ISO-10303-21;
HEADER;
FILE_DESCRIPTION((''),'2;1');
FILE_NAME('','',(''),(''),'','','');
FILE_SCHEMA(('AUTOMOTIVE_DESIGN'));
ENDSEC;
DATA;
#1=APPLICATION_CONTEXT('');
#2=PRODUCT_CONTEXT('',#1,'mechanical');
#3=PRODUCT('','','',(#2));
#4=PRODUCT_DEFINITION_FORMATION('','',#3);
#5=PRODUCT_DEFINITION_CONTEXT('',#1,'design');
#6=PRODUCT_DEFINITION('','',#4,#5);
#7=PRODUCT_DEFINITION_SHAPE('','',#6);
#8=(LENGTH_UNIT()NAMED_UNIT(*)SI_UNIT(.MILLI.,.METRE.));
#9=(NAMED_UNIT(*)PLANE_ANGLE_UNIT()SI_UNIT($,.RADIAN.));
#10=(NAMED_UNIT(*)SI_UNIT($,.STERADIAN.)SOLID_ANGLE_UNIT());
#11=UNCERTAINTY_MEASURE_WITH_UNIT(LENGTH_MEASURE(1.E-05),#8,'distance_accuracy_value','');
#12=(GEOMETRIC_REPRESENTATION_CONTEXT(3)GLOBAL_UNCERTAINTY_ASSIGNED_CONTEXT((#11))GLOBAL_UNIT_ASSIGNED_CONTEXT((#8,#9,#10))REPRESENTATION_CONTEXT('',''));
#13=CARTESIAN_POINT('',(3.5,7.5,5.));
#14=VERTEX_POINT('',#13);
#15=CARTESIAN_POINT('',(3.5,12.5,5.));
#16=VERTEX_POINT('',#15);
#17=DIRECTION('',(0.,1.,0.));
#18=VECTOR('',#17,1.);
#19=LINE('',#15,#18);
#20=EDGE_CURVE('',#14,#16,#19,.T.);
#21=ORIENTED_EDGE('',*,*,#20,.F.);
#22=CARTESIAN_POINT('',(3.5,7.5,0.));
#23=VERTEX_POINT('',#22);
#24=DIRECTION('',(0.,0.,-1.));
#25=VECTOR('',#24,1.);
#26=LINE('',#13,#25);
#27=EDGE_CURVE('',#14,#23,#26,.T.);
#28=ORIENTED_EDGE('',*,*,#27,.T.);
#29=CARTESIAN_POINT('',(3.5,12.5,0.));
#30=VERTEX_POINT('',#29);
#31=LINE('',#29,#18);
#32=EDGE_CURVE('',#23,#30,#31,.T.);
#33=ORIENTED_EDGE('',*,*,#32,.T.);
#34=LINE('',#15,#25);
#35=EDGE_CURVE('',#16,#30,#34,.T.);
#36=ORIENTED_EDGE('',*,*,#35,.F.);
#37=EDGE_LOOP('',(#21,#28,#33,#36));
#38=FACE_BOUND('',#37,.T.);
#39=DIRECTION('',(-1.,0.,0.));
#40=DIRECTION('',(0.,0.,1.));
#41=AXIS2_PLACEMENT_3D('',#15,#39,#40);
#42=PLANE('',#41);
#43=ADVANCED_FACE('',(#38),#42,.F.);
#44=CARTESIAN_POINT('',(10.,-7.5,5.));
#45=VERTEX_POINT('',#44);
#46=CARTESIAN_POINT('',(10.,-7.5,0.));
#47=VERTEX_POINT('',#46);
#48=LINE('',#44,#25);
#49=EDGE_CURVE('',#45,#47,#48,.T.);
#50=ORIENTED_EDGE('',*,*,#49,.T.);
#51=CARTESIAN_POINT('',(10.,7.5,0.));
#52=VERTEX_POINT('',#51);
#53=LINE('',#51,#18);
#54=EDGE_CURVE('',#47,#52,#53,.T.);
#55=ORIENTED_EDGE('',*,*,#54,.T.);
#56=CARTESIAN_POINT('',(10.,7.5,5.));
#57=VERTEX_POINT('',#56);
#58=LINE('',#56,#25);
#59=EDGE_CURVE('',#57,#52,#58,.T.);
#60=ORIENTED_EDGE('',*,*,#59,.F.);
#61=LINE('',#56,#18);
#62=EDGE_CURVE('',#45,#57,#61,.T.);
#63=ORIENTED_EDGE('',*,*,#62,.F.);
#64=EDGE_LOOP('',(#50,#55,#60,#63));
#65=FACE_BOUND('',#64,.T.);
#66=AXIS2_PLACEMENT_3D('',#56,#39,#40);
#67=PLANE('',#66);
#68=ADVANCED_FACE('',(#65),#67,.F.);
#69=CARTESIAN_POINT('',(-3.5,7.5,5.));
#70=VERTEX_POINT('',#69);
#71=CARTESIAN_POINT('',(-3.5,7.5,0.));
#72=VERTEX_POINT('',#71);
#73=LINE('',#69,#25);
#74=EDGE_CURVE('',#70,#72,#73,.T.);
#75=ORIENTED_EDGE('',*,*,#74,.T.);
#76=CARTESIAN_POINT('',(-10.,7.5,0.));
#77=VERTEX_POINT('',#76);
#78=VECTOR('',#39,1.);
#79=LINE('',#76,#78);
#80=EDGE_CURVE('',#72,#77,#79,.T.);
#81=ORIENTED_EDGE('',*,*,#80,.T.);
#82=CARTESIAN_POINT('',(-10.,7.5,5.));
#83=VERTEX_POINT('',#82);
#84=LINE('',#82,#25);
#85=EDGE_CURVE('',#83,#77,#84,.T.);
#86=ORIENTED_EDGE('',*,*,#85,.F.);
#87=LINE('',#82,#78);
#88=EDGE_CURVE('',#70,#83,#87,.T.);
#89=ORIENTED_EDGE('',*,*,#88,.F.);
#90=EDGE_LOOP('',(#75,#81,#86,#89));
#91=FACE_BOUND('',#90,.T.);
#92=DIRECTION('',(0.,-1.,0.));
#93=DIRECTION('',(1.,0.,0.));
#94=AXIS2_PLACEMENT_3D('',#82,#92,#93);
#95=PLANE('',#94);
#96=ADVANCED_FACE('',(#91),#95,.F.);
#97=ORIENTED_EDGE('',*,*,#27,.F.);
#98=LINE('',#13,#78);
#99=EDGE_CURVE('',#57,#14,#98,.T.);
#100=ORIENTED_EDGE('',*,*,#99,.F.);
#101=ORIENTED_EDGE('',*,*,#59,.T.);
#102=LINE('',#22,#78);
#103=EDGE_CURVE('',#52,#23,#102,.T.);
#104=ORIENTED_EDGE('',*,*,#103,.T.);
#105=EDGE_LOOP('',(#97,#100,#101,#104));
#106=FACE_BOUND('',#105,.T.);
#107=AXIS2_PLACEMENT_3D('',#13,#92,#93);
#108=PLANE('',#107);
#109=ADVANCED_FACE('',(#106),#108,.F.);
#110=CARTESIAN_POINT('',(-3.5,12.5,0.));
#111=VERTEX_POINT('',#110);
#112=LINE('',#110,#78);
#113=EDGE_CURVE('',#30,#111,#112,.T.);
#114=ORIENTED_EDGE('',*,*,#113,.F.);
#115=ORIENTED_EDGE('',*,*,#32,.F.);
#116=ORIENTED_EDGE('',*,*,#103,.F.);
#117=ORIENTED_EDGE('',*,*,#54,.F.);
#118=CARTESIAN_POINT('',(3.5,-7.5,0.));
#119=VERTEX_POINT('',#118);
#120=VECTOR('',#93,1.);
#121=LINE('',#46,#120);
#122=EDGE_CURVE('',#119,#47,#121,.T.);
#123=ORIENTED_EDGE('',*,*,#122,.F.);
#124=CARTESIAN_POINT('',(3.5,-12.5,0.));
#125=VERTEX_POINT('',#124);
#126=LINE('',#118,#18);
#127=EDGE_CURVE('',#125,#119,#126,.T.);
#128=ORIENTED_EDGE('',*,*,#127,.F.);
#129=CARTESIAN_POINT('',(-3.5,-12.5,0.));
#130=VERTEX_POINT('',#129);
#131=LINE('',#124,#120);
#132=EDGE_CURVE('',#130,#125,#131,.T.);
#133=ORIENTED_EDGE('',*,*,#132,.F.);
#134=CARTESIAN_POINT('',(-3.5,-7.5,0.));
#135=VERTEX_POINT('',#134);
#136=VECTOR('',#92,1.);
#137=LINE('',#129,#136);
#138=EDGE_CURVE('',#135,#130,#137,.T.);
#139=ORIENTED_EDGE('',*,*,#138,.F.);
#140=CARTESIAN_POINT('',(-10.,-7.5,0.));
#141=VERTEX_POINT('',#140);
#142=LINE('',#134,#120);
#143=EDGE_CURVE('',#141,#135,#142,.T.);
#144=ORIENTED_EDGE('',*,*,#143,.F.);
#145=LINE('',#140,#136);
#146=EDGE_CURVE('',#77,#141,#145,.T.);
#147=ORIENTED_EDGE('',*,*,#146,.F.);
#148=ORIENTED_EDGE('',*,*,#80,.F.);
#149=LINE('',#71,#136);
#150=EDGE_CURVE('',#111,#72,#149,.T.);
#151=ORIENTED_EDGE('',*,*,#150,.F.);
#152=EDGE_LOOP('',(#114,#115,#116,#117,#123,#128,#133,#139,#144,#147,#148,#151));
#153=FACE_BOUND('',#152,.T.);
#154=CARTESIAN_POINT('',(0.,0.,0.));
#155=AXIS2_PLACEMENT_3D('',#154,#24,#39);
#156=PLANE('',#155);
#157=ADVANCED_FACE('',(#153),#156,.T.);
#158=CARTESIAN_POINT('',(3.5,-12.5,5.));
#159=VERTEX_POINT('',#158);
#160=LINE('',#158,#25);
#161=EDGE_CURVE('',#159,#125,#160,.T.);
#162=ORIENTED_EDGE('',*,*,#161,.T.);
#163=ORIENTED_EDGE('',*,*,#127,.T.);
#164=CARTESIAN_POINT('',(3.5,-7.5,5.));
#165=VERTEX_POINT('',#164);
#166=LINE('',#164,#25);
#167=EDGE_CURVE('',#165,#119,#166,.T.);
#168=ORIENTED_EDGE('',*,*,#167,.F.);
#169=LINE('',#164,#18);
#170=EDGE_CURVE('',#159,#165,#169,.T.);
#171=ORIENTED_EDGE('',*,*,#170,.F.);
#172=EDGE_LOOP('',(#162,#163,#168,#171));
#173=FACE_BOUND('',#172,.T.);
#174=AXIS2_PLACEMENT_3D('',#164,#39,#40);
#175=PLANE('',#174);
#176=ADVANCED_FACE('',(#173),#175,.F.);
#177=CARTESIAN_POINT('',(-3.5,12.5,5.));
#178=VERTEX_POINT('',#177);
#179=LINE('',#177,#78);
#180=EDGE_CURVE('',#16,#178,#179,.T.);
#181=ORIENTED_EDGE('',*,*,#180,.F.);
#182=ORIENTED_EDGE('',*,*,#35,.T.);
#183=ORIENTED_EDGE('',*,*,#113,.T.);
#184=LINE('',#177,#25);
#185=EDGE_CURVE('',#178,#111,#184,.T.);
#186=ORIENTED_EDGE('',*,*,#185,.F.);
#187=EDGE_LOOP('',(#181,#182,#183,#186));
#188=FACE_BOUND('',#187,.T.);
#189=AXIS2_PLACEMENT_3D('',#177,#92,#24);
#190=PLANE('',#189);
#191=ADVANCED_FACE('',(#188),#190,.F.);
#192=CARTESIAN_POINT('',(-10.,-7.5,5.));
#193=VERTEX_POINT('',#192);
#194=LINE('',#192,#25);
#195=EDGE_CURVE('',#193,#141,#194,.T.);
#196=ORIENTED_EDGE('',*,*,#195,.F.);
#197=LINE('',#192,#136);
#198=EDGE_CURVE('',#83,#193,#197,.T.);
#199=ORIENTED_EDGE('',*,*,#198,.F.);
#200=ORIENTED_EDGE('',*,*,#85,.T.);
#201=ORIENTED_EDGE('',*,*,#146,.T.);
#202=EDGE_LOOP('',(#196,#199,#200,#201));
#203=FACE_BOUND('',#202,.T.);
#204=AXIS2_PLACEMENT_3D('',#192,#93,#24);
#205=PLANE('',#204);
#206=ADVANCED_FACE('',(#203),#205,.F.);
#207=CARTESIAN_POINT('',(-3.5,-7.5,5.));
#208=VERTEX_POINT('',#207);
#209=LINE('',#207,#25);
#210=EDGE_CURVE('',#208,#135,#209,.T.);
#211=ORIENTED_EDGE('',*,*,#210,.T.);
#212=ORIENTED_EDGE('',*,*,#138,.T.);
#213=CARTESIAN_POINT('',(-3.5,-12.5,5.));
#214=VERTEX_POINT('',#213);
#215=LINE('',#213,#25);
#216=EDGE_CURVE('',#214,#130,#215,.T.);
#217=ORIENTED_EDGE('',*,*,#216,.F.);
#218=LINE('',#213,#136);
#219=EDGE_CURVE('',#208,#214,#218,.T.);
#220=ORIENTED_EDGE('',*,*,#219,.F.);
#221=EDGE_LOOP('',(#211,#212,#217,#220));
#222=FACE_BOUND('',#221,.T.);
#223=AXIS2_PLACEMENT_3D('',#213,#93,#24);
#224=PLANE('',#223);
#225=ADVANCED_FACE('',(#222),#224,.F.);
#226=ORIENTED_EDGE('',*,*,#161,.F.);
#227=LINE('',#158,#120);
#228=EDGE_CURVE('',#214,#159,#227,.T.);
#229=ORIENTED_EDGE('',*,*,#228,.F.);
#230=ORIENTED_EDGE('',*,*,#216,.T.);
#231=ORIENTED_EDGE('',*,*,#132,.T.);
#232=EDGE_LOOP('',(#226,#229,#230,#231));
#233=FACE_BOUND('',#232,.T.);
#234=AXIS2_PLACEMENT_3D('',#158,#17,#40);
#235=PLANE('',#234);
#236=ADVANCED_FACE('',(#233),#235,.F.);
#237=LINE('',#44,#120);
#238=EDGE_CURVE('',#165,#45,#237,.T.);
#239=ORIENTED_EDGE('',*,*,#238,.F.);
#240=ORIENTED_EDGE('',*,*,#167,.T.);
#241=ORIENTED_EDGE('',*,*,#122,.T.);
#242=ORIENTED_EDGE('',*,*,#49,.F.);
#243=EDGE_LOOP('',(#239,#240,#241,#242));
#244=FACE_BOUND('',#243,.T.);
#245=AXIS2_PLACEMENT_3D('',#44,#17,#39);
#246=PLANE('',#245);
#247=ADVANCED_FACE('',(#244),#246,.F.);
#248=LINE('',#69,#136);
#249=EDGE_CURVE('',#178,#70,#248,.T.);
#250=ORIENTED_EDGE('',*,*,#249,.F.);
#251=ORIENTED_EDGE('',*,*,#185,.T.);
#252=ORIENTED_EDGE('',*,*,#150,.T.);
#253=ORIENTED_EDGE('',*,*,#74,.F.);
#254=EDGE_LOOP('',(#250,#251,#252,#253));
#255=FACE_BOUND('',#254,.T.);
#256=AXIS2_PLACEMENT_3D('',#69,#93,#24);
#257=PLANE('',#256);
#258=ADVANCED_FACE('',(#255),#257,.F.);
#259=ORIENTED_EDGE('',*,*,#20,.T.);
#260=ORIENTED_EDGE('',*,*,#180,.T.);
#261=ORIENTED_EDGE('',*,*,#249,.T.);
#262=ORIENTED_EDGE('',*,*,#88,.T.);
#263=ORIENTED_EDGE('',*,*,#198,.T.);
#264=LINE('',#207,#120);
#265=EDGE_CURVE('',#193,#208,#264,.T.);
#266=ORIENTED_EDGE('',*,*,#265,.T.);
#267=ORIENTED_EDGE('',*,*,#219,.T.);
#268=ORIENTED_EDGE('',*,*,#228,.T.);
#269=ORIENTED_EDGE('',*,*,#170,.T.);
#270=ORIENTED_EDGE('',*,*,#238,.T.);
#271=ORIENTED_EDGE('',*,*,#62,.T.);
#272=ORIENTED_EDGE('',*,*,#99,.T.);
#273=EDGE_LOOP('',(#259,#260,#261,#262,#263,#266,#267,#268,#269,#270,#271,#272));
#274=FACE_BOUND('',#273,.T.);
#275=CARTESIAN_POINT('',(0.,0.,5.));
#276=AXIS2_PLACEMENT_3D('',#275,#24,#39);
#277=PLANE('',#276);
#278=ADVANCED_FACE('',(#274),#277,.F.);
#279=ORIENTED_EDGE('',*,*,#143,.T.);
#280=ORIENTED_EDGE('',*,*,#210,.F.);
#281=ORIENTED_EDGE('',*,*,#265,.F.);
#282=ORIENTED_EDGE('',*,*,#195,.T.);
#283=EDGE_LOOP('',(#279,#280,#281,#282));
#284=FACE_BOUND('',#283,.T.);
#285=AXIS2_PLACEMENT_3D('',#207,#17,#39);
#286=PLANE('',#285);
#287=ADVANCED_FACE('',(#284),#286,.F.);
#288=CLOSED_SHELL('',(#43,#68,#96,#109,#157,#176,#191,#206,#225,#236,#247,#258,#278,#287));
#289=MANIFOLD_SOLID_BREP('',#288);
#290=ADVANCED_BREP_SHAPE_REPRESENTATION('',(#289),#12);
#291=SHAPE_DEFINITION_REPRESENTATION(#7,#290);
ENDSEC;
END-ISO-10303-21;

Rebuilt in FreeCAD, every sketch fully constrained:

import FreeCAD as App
import Part
import Sketcher

V = App.Vector
Q = App.Units.Quantity


def add_polygon(sketch, points):
    """Adds a closed chain of lines whose ends are joined by coincident constraints."""
    first, n = sketch.GeometryCount, len(points)
    for a, b in zip(points, points[1:] + points[:1]):
        sketch.addGeometry(Part.LineSegment(App.Vector(*a, 0), App.Vector(*b, 0)), False)
    for i in range(n):
        sketch.addConstraint(Sketcher.Constraint("Coincident", first + i, 2, first + (i + 1) % n, 1))

doc = App.newDocument("Part")
body = doc.addObject("PartDesign::Body", "Body")

sketch1 = body.newObject("Sketcher::SketchObject", "Sketch")
sketch1.AttachmentSupport = (doc.getObject("XY_Plane"), [""])
sketch1.MapMode = "FlatFace"
add_polygon(sketch1, [(-10, 7.5), (-10, -7.5), (-3.5, -7.5), (-3.5, -12.5), (3.5, -12.5), (3.5, -7.5), (10, -7.5), (10, 7.5), (3.5, 7.5), (3.5, 12.5), (-3.5, 12.5), (-3.5, 7.5)])
sketch1.addConstraint([
    Sketcher.Constraint("Vertical", 0),
    Sketcher.Constraint("Horizontal", 1),
    Sketcher.Constraint("Vertical", 2),
    Sketcher.Constraint("Horizontal", 3),
    Sketcher.Constraint("Vertical", 4),
    Sketcher.Constraint("Horizontal", 5),
    Sketcher.Constraint("Vertical", 6),
    Sketcher.Constraint("Horizontal", 7),
    Sketcher.Constraint("Vertical", 8),
    Sketcher.Constraint("Horizontal", 9),
    Sketcher.Constraint("Vertical", 10),
    Sketcher.Constraint("Horizontal", 11),
    Sketcher.Constraint("Symmetric", 0, 2, 6, 2, -1, 1),
    Sketcher.Constraint("Symmetric", 2, 2, 8, 2, -1, 1),
    Sketcher.Constraint("Symmetric", 4, 2, 10, 2, -1, 1),
    Sketcher.Constraint("Symmetric", 1, 2, 4, 2, -2),
    Sketcher.Constraint("DistanceX", 3, 1, 3, 2, Q("7 mm")),
    Sketcher.Constraint("DistanceY", 0, 2, 0, 1, Q("15 mm")),
    Sketcher.Constraint("DistanceY", 2, 2, 2, 1, Q("5 mm")),
    Sketcher.Constraint("DistanceX", 1, 1, 1, 2, Q("6.5 mm")),
])
pad1 = body.newObject("PartDesign::Pad", "Pad")
pad1.Profile = sketch1
pad1.Length = 5

doc.recompute()
